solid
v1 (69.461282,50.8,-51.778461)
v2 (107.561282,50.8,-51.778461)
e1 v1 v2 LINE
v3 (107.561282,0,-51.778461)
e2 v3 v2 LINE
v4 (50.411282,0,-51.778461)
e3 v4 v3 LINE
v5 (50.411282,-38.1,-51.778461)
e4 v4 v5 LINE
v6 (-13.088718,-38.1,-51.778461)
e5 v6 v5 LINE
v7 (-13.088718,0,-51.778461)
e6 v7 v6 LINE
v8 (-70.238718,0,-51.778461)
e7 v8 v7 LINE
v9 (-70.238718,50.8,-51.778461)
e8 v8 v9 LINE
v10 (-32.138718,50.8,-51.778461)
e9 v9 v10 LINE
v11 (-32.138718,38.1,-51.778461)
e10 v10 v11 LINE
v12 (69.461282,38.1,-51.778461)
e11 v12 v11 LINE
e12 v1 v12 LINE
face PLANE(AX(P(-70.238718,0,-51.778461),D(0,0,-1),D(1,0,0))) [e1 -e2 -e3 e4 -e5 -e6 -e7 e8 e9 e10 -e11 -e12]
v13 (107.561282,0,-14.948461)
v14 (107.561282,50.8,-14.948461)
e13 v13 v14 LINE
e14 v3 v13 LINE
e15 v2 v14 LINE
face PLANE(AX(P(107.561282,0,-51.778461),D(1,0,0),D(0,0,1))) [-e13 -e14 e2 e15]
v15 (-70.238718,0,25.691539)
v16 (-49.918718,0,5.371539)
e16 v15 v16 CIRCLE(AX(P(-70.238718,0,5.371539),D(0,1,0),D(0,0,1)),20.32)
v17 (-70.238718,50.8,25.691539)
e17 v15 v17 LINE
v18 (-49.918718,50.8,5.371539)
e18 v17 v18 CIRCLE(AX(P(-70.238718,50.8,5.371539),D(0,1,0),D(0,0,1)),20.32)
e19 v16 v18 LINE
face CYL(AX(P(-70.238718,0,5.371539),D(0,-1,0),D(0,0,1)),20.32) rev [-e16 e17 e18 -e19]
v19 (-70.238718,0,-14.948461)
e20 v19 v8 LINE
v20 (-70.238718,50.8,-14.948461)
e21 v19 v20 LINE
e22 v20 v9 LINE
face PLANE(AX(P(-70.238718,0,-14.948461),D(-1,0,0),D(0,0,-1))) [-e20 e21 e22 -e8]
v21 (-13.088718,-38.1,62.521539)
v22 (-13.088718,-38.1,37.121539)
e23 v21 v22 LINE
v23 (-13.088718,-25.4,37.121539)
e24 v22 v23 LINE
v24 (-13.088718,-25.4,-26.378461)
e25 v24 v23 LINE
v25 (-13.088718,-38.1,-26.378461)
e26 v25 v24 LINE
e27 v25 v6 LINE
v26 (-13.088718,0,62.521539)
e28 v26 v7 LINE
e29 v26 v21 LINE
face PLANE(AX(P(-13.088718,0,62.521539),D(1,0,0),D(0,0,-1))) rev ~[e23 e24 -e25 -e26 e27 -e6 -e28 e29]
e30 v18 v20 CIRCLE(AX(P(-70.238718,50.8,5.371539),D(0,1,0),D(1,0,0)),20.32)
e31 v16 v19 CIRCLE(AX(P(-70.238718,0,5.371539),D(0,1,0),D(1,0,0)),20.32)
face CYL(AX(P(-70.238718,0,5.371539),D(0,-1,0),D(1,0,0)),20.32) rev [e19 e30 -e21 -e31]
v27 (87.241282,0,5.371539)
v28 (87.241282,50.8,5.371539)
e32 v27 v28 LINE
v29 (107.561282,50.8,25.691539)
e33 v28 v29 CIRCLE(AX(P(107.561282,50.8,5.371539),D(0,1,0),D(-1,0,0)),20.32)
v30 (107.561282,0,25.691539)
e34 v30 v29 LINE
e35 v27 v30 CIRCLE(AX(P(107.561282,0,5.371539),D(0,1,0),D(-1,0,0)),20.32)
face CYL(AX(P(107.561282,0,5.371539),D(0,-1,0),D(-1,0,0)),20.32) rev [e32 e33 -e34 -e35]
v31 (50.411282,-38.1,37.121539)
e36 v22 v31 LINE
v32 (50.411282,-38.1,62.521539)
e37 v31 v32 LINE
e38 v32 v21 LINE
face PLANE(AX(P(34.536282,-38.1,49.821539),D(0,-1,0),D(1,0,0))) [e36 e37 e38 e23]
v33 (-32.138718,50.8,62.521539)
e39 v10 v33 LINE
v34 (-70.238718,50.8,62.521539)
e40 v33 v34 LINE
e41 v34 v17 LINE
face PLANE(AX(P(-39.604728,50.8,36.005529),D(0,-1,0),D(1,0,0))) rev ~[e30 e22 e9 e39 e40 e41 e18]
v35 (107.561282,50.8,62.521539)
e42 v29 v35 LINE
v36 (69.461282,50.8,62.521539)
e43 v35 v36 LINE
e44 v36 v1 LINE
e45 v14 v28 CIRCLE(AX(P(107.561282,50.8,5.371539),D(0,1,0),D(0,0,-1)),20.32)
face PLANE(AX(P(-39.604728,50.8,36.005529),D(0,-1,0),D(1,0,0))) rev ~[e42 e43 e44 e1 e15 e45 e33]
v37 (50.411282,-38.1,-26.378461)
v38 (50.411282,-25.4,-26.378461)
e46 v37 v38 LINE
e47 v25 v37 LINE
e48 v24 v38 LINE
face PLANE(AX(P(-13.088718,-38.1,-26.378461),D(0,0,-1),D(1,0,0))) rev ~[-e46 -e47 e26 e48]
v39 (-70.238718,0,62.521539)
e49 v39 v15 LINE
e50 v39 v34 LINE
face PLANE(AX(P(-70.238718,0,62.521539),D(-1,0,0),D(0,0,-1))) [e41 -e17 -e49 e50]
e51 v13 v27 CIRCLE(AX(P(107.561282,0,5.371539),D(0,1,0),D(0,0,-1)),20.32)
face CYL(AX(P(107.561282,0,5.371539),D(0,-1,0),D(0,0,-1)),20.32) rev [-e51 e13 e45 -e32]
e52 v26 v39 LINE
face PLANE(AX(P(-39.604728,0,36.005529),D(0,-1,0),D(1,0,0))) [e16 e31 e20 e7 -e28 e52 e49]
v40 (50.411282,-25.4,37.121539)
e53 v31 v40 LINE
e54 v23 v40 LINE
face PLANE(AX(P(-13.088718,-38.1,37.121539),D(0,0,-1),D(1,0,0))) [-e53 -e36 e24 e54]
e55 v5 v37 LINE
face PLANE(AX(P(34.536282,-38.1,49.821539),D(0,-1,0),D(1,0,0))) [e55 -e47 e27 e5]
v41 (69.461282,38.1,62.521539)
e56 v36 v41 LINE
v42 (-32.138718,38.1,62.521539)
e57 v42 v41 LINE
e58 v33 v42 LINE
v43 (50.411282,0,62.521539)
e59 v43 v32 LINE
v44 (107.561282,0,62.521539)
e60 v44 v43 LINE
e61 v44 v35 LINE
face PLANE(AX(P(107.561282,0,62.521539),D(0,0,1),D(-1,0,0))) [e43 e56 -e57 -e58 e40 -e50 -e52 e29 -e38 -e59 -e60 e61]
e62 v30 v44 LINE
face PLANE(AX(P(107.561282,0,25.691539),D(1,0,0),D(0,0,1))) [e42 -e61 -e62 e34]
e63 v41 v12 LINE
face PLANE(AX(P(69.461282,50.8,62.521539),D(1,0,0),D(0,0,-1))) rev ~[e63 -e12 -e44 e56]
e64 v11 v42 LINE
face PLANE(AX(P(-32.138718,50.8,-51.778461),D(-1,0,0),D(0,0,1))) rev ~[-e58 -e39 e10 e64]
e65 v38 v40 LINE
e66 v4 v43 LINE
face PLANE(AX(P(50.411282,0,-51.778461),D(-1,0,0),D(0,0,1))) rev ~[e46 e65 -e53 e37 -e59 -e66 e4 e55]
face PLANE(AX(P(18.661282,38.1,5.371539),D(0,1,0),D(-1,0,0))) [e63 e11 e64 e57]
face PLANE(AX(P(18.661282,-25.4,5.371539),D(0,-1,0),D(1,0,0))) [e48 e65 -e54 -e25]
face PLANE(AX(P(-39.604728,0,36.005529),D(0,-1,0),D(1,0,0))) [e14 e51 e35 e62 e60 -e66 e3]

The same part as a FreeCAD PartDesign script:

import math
import FreeCAD as App
import Part
import Sketcher
Q = App.Units.Quantity

doc = App.newDocument("Part")
body = doc.addObject("PartDesign::Body", "Body")

sketch1 = body.newObject("Sketcher::SketchObject", "Sketch")
sketch1.AttachmentSupport = (doc.getObject("XZ_Plane"), [""])
sketch1.MapMode = "FlatFace"
sketch1.addGeometry([
    Part.LineSegment(App.Vector(-70, 63, 0), App.Vector(-70, 26, 0)),
    Part.ArcOfCircle(Part.Circle(App.Vector(-70, 5, 0), App.Vector(0, 0, 1), 20), math.radians(0), math.radians(90)),
    Part.ArcOfCircle(Part.Circle(App.Vector(-70, 5, 0), App.Vector(0, 0, 1), 20), math.radians(-90), math.radians(0)),
    Part.LineSegment(App.Vector(-70, -15, 0), App.Vector(-70, -52, 0)),
    Part.LineSegment(App.Vector(-70, -52, 0), App.Vector(108, -52, 0)),
    Part.LineSegment(App.Vector(108, -52, 0), App.Vector(108, -15, 0)),
    Part.ArcOfCircle(Part.Circle(App.Vector(108, 5, 0), App.Vector(0, 0, 1), 20), math.radians(180), math.radians(270)),
    Part.ArcOfCircle(Part.Circle(App.Vector(108, 5, 0), App.Vector(0, 0, 1), 20), math.radians(90), math.radians(180)),
    Part.LineSegment(App.Vector(108, 26, 0), App.Vector(108, 63, 0)),
    Part.LineSegment(App.Vector(108, 63, 0), App.Vector(-70, 63, 0)),
], False)
sketch1.addConstraint([
    Sketcher.Constraint("Coincident", 0, 2, 1, 2),
    Sketcher.Constraint("Tangent", 1, 1, 2, 2),
    Sketcher.Constraint("Coincident", 2, 1, 3, 1),
    Sketcher.Constraint("Coincident", 3, 2, 4, 1),
    Sketcher.Constraint("Coincident", 4, 2, 5, 1),
    Sketcher.Constraint("Coincident", 5, 2, 6, 2),
    Sketcher.Constraint("Tangent", 6, 1, 7, 2),
    Sketcher.Constraint("Coincident", 7, 1, 8, 1),
    Sketcher.Constraint("Coincident", 8, 2, 9, 1),
    Sketcher.Constraint("Coincident", 9, 2, 0, 1),
    Sketcher.Constraint("Vertical", 0),
    Sketcher.Constraint("Vertical", 3),
    Sketcher.Constraint("Horizontal", 4),
    Sketcher.Constraint("Vertical", 5),
    Sketcher.Constraint("Vertical", 8),
    Sketcher.Constraint("Horizontal", 9),
    Sketcher.Constraint("Equal", 1, 2),
    Sketcher.Constraint("Equal", 2, 6),
    Sketcher.Constraint("Equal", 6, 7),
    Sketcher.Constraint("Horizontal", 2, 3, 6, 3),
    Sketcher.Constraint("Horizontal", 7, 3, 1, 1),
    Sketcher.Constraint("Horizontal", 1, 1, 6, 1),
    Sketcher.Constraint("Vertical", 2, 3, 0, 2),
    Sketcher.Constraint("Vertical", 0, 2, 2, 1),
    Sketcher.Constraint("Vertical", 7, 3, 4, 2),
    Sketcher.Constraint("Vertical", 5, 2, 7, 1),
    Sketcher.Constraint("Equal", 0, 3),
    Sketcher.Constraint("Radius", 1, Q("0.8 in")),
    Sketcher.Constraint("DistanceX", 4, 1, 4, 2, Q("7 in")),
    Sketcher.Constraint("DistanceY", 0, 2, 0, 1, Q("1.45 in")),
    Sketcher.Constraint("DistanceY", -1, 1, 1, 3, 5.371539),
    Sketcher.Constraint("DistanceX", 1, 3, -1, 1, 70.238718),
])
pad1 = body.newObject("PartDesign::Pad", "Pad")
pad1.Profile = sketch1
pad1.Length = Q("2 in")
pad1.Reversed = True

sketch2 = body.newObject("Sketcher::SketchObject", "Sketch001")
sketch2.AttachmentSupport = (doc.getObject("XZ_Plane"), [""])
sketch2.MapMode = "FlatFace"
sketch2.addGeometry([
    Part.LineSegment(App.Vector(50, 63, 0), App.Vector(-13, 63, 0)),
    Part.LineSegment(App.Vector(-13, 63, 0), App.Vector(-13, -52, 0)),
    Part.LineSegment(App.Vector(-13, -52, 0), App.Vector(50, -52, 0)),
    Part.LineSegment(App.Vector(50, -52, 0), App.Vector(50, 63, 0)),
], False)
sketch2.addConstraint([
    Sketcher.Constraint("Coincident", 0, 2, 1, 1),
    Sketcher.Constraint("Coincident", 1, 2, 2, 1),
    Sketcher.Constraint("Coincident", 2, 2, 3, 1),
    Sketcher.Constraint("Coincident", 3, 2, 0, 1),
    Sketcher.Constraint("Horizontal", 0),
    Sketcher.Constraint("Vertical", 1),
    Sketcher.Constraint("Horizontal", 2),
    Sketcher.Constraint("Vertical", 3),
    Sketcher.Constraint("DistanceX", 0, 2, 0, 1, Q("2.5 in")),
    Sketcher.Constraint("DistanceY", 1, 2, 1, 1, Q("4.5 in")),
    Sketcher.Constraint("DistanceY", -1, 1, 0, 2, 62.521539),
    Sketcher.Constraint("DistanceX", 0, 2, -1, 1, 13.088718),
])
pad2 = body.newObject("PartDesign::Pad", "Pad001")
pad2.Profile = sketch2
pad2.Length = Q("1.5 in")

sketch3 = body.newObject("Sketcher::SketchObject", "Sketch002")
sketch3.AttachmentSupport = (doc.getObject("XZ_Plane"), [""])
sketch3.MapMode = "FlatFace"
sketch3.AttachmentOffset = App.Placement(App.Vector(0, 0, 1.5 * 25.4), App.Rotation())
sketch3.addGeometry([
    Part.LineSegment(App.Vector(-13, 37, 0), App.Vector(-13, -26, 0)),
    Part.LineSegment(App.Vector(-13, -26, 0), App.Vector(50, -26, 0)),
    Part.LineSegment(App.Vector(50, -26, 0), App.Vector(50, 37, 0)),
    Part.LineSegment(App.Vector(50, 37, 0), App.Vector(-13, 37, 0)),
], False)
sketch3.addConstraint([
    Sketcher.Constraint("Coincident", 0, 2, 1, 1),
    Sketcher.Constraint("Coincident", 1, 2, 2, 1),
    Sketcher.Constraint("Coincident", 2, 2, 3, 1),
    Sketcher.Constraint("Coincident", 3, 2, 0, 1),
    Sketcher.Constraint("Vertical", 0),
    Sketcher.Constraint("Horizontal", 1),
    Sketcher.Constraint("Vertical", 2),
    Sketcher.Constraint("Horizontal", 3),
    Sketcher.Constraint("Equal", 3, 0),
    Sketcher.Constraint("DistanceX", 1, 1, 1, 2, Q("2.5 in")),
    Sketcher.Constraint("DistanceY", 0, 2, -1, 1, 26.378461),
    Sketcher.Constraint("DistanceX", 0, 2, -1, 1, 13.088718),
])
pocket1 = body.newObject("PartDesign::Pocket", "Pocket")
pocket1.Profile = sketch3
pocket1.Length = Q("0.5 in")

sketch4 = body.newObject("Sketcher::SketchObject", "Sketch003")
sketch4.AttachmentSupport = (doc.getObject("XZ_Plane"), [""])
sketch4.MapMode = "FlatFace"
sketch4.AttachmentOffset = App.Placement(App.Vector(0, 0, -2 * 25.4), App.Rotation())
sketch4.addGeometry([
    Part.LineSegment(App.Vector(-32, 63, 0), App.Vector(69, 63, 0)),
    Part.LineSegment(App.Vector(69, 63, 0), App.Vector(69, -52, 0)),
    Part.LineSegment(App.Vector(69, -52, 0), App.Vector(-32, -52, 0)),
    Part.LineSegment(App.Vector(-32, -52, 0), App.Vector(-32, 63, 0)),
], False)
sketch4.addConstraint([
    Sketcher.Constraint("Coincident", 0, 2, 1, 1),
    Sketcher.Constraint("Coincident", 1, 2, 2, 1),
    Sketcher.Constraint("Coincident", 2, 2, 3, 1),
    Sketcher.Constraint("Coincident", 3, 2, 0, 1),
    Sketcher.Constraint("Horizontal", 0),
    Sketcher.Constraint("Vertical", 1),
    Sketcher.Constraint("Horizontal", 2),
    Sketcher.Constraint("Vertical", 3),
    Sketcher.Constraint("DistanceX", 0, 1, 0, 2, Q("4 in")),
    Sketcher.Constraint("DistanceY", 1, 2, 1, 1, Q("4.5 in")),
    Sketcher.Constraint("DistanceY", -1, 1, 0, 2, 62.521539),
    Sketcher.Constraint("DistanceX", -1, 1, 0, 2, 69.461282),
])
pocket2 = body.newObject("PartDesign::Pocket", "Pocket001")
pocket2.Profile = sketch4
pocket2.Length = Q("0.5 in")
pocket2.Reversed = True

doc.recompute()
